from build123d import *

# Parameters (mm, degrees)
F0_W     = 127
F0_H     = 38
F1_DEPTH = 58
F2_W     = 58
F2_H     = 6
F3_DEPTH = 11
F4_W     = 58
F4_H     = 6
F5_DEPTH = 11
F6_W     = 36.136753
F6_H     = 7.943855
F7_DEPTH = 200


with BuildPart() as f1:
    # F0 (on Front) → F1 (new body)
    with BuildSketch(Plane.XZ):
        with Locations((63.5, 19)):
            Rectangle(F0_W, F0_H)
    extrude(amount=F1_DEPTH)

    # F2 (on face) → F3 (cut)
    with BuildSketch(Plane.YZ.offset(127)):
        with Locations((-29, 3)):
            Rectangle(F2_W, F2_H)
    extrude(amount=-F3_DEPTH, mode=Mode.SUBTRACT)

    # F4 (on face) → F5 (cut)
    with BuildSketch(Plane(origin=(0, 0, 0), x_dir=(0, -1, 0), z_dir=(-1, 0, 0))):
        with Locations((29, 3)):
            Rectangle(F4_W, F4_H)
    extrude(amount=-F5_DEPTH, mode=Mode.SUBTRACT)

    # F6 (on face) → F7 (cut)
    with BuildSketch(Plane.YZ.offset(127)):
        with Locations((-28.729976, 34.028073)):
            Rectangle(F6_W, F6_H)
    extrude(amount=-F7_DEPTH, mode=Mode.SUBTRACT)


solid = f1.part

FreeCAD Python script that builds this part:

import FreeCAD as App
import Part
import Sketcher
Q = App.Units.Quantity


def add_polygon(sketch, points):
    """Adds a closed chain of lines whose ends are joined by coincident constraints."""
    first, n = sketch.GeometryCount, len(points)
    for a, b in zip(points, points[1:] + points[:1]):
        sketch.addGeometry(Part.LineSegment(App.Vector(*a, 0), App.Vector(*b, 0)), False)
    for i in range(n):
        sketch.addConstraint(Sketcher.Constraint("Coincident", first + i, 2, first + (i + 1) % n, 1))

doc = App.newDocument("Part")
body = doc.addObject("PartDesign::Body", "Body")

# Sketch on XZ plane
sketch1 = doc.addObject("Sketcher::SketchObject", "Sketch")
body.addObject(sketch1)
sketch1.AttachmentSupport = (doc.XZ_Plane, [""])
sketch1.MapMode = "FlatFace"
add_polygon(sketch1, [(0, 38), (0, 0), (127, 0), (127, 38)])  # lines 0-3
sketch1.addConstraint(Sketcher.Constraint("Vertical", 0))
sketch1.addConstraint(Sketcher.Constraint("Horizontal", 1))
sketch1.addConstraint(Sketcher.Constraint("Vertical", 2))
sketch1.addConstraint(Sketcher.Constraint("Horizontal", 3))
sketch1.addConstraint(Sketcher.Constraint("Coincident", 0, 2, -1, 1))
sketch1.addConstraint(Sketcher.Constraint("DistanceX", 1, 1, 1, 2, Q("127 mm")))
sketch1.addConstraint(Sketcher.Constraint("DistanceY", 0, 2, 0, 1, Q("38 mm")))
pad1 = doc.addObject("PartDesign::Pad", "Pad")
body.addObject(pad1)
pad1.Profile = sketch1
pad1.Length = 58

# Sketch on YZ plane
sketch2 = doc.addObject("Sketcher::SketchObject", "Sketch001")
body.addObject(sketch2)
sketch2.AttachmentSupport = (doc.YZ_Plane, [""])
sketch2.MapMode = "FlatFace"
sketch2.AttachmentOffset = App.Placement(App.Vector(0, 0, 127), App.Rotation())
add_polygon(sketch2, [(-58, 6), (-58, 0), (0, 0), (0, 6)])  # lines 0-3
sketch2.addConstraint(Sketcher.Constraint("Vertical", 0))
sketch2.addConstraint(Sketcher.Constraint("Horizontal", 1))
sketch2.addConstraint(Sketcher.Constraint("Vertical", 2))
sketch2.addConstraint(Sketcher.Constraint("Horizontal", 3))
sketch2.addConstraint(Sketcher.Constraint("Coincident", 1, 2, -1, 1))
sketch2.addConstraint(Sketcher.Constraint("DistanceX", 1, 1, 1, 2, Q("58 mm")))
sketch2.addConstraint(Sketcher.Constraint("DistanceY", 0, 2, 0, 1, Q("6 mm")))
pocket1 = doc.addObject("PartDesign::Pocket", "Pocket")
body.addObject(pocket1)
pocket1.Profile = sketch2
pocket1.Length = 11

# Sketch on YZ plane
sketch3 = doc.addObject("Sketcher::SketchObject", "Sketch002")
body.addObject(sketch3)
sketch3.AttachmentSupport = (doc.YZ_Plane, [""])
sketch3.MapMode = "FlatFace"
add_polygon(sketch3, [(0, 6), (0, 0), (-58, 0), (-58, 6)])  # lines 0-3
sketch3.addConstraint(Sketcher.Constraint("Vertical", 0))
sketch3.addConstraint(Sketcher.Constraint("Horizontal", 1))
sketch3.addConstraint(Sketcher.Constraint("Vertical", 2))
sketch3.addConstraint(Sketcher.Constraint("Horizontal", 3))
sketch3.addConstraint(Sketcher.Constraint("Coincident", 0, 2, -1, 1))
sketch3.addConstraint(Sketcher.Constraint("DistanceX", 1, 2, 1, 1, Q("58 mm")))
sketch3.addConstraint(Sketcher.Constraint("DistanceY", 0, 2, 0, 1, Q("6 mm")))
pocket2 = doc.addObject("PartDesign::Pocket", "Pocket001")
body.addObject(pocket2)
pocket2.Profile = sketch3
pocket2.Length = 11
pocket2.Reversed = True

# Sketch on YZ plane
sketch4 = doc.addObject("Sketcher::SketchObject", "Sketch003")
body.addObject(sketch4)
sketch4.AttachmentSupport = (doc.YZ_Plane, [""])
sketch4.MapMode = "FlatFace"
sketch4.AttachmentOffset = App.Placement(App.Vector(0, 0, 127), App.Rotation())
add_polygon(sketch4, [(-46.798353, 38), (-46.798353, 30.056145), (-10.661599, 30.056145), (-10.661599, 38)])  # lines 0-3
sketch4.addConstraint(Sketcher.Constraint("Vertical", 0))
sketch4.addConstraint(Sketcher.Constraint("Horizontal", 1))
sketch4.addConstraint(Sketcher.Constraint("Vertical", 2))
sketch4.addConstraint(Sketcher.Constraint("Horizontal", 3))
sketch4.addConstraint(Sketcher.Constraint("DistanceY", -1, 1, 2, 2, Q("38 mm")))
sketch4.addConstraint(Sketcher.Constraint("DistanceX", 1, 2, -1, 1, Q("10.661599 mm")))
sketch4.addConstraint(Sketcher.Constraint("DistanceX", 1, 1, 1, 2, Q("36.136753 mm")))
sketch4.addConstraint(Sketcher.Constraint("DistanceY", 0, 2, 0, 1, Q("7.943855 mm")))
pocket3 = doc.addObject("PartDesign::Pocket", "Pocket002")
body.addObject(pocket3)
pocket3.Profile = sketch4
pocket3.Length = 200

doc.recompute()
